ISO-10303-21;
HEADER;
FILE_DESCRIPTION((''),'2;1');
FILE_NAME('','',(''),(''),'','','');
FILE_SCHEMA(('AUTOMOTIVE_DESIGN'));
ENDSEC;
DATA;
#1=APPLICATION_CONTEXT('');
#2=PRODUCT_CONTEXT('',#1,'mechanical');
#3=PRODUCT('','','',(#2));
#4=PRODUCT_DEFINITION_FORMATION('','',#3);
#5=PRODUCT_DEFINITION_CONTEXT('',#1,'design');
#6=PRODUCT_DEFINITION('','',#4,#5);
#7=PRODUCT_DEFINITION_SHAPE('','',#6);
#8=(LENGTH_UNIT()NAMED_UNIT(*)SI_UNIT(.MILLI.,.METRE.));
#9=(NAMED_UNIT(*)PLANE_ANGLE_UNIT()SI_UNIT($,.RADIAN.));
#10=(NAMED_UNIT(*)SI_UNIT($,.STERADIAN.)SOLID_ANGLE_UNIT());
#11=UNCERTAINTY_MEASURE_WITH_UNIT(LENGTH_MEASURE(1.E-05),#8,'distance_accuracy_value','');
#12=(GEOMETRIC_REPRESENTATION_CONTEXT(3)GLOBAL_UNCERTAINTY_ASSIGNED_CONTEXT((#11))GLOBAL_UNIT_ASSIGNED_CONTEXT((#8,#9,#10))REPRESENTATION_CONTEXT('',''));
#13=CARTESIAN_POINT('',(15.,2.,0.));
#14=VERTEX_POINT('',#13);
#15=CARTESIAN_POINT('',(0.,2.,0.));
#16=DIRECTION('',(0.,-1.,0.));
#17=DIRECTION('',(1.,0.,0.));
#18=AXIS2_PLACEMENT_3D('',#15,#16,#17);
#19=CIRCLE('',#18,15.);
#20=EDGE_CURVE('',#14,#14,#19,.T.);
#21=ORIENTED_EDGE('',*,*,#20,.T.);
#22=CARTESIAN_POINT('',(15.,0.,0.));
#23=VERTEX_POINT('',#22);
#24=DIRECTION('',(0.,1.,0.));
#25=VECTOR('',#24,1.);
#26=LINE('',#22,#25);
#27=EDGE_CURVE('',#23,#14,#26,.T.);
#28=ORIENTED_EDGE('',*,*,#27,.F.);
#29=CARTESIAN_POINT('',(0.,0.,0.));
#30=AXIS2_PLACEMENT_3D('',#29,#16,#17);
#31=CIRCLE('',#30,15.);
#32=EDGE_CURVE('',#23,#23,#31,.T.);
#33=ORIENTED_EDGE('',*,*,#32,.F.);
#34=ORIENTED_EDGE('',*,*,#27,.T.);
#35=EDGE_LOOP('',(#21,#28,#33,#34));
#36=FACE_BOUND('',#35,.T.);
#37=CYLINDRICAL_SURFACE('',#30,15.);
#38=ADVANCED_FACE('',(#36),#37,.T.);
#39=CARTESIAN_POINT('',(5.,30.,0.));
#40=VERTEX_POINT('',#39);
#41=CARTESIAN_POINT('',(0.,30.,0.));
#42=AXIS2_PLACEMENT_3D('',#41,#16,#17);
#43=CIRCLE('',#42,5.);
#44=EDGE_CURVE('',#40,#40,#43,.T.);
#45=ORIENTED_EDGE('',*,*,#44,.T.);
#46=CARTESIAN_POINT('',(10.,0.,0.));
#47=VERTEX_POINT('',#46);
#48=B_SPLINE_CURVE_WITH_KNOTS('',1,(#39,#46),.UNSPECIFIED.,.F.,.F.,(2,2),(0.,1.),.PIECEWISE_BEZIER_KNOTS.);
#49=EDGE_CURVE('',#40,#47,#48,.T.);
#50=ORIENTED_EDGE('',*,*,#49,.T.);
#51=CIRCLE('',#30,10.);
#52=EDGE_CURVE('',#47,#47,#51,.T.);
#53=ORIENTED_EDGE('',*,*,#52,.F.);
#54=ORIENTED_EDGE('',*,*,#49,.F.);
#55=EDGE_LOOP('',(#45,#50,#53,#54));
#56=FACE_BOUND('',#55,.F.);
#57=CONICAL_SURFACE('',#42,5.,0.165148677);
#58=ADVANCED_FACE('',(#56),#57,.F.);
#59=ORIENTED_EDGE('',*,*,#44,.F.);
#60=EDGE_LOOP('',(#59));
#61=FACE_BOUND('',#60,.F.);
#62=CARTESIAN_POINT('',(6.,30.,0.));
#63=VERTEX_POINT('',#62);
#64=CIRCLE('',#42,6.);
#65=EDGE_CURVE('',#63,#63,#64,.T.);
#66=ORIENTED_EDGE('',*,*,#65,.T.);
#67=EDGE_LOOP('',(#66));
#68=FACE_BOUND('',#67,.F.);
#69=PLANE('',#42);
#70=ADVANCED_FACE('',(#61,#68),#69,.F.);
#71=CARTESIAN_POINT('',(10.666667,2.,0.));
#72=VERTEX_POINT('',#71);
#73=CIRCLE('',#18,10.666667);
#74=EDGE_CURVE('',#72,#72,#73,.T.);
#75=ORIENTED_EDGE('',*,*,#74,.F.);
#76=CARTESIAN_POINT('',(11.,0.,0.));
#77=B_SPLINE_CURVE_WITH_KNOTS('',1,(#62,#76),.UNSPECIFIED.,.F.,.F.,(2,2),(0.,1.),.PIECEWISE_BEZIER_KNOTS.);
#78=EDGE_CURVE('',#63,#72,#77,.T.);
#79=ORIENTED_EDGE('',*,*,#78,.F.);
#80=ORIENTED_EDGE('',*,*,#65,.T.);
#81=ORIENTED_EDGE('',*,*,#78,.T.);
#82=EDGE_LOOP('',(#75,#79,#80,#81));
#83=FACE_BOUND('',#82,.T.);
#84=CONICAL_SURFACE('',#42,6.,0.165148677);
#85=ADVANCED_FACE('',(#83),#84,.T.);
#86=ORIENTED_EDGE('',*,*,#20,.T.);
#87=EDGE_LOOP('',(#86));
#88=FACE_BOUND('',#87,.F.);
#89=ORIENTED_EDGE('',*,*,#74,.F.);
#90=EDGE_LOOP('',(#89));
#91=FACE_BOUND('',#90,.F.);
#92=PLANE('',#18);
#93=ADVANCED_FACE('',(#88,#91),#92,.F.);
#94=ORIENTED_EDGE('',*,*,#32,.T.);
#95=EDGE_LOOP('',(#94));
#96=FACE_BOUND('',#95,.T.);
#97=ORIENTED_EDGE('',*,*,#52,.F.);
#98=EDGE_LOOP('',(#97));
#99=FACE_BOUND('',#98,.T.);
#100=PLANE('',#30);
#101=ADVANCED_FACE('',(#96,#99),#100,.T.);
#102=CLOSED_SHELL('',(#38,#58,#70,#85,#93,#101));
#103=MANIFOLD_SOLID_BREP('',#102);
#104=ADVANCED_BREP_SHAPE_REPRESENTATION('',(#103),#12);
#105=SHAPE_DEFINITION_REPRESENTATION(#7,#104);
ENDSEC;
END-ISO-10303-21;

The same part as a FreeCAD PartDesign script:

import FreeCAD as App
import Part
import Sketcher

V = App.Vector

doc = App.newDocument("Part")
body = doc.addObject("PartDesign::Body", "Body")

sketch1 = body.newObject("Sketcher::SketchObject", "Sketch")
sketch1.AttachmentSupport = (doc.getObject("XZ_Plane"), [""])
sketch1.MapMode = "FlatFace"
sketch1.AttachmentOffset = App.Placement(V(0, 0, -30), App.Rotation())
sketch1.addGeometry(Part.Circle(V(0, 0, 0), V(0, 0, 1), 6), False)
sketch1.addConstraint([
    Sketcher.Constraint("Coincident", 0, 3, -1, 1),
    Sketcher.Constraint("Diameter", 0, 12.0),
])

sketch2 = body.newObject("Sketcher::SketchObject", "Sketch001")
sketch2.AttachmentSupport = (doc.getObject("XZ_Plane"), [""])
sketch2.MapMode = "FlatFace"
sketch2.addGeometry(Part.Circle(V(0, 0, 0), V(0, 0, 1), 11), False)
sketch2.addConstraint([
    Sketcher.Constraint("Coincident", 0, 3, -1, 1),
    Sketcher.Constraint("Diameter", 0, 22.0),
])

additiveloft = body.newObject("PartDesign::AdditiveLoft", "AdditiveLoft")
additiveloft.Profile = sketch1
additiveloft.Sections = [sketch2]

sketch3 = body.newObject("Sketcher::SketchObject", "Sketch002")
sketch3.AttachmentSupport = (doc.getObject("XZ_Plane"), [""])
sketch3.MapMode = "FlatFace"
sketch3.addGeometry(Part.Circle(V(0, 0, 0), V(0, 0, 1), 15), False)
sketch3.addConstraint([
    Sketcher.Constraint("Coincident", 0, 3, -1, 1),
    Sketcher.Constraint("Diameter", 0, 30.0),
])
pad1 = body.newObject("PartDesign::Pad", "Pad")
pad1.Profile = sketch3
pad1.Length = 2
pad1.Reversed = True

sketch4 = body.newObject("Sketcher::SketchObject", "Sketch003")
sketch4.AttachmentSupport = (doc.getObject("XZ_Plane"), [""])
sketch4.MapMode = "FlatFace"
sketch4.AttachmentOffset = App.Placement(V(0, 0, -30), App.Rotation())
sketch4.addGeometry(Part.Circle(V(0, 0, 0), V(0, 0, 1), 5), False)
sketch4.addConstraint([
    Sketcher.Constraint("Coincident", 0, 3, -1, 1),
    Sketcher.Constraint("Diameter", 0, 10.0),
])

sketch5 = body.newObject("Sketcher::SketchObject", "Sketch004")
sketch5.AttachmentSupport = (doc.getObject("XZ_Plane"), [""])
sketch5.MapMode = "FlatFace"
sketch5.addGeometry(Part.Circle(V(0, 0, 0), V(0, 0, 1), 10), False)
sketch5.addConstraint([
    Sketcher.Constraint("Coincident", 0, 3, -1, 1),
    Sketcher.Constraint("Diameter", 0, 20.0),
])

subtractiveloft = body.newObject("PartDesign::SubtractiveLoft", "SubtractiveLoft")
subtractiveloft.Profile = sketch4
subtractiveloft.Sections = [sketch5]

doc.recompute()
